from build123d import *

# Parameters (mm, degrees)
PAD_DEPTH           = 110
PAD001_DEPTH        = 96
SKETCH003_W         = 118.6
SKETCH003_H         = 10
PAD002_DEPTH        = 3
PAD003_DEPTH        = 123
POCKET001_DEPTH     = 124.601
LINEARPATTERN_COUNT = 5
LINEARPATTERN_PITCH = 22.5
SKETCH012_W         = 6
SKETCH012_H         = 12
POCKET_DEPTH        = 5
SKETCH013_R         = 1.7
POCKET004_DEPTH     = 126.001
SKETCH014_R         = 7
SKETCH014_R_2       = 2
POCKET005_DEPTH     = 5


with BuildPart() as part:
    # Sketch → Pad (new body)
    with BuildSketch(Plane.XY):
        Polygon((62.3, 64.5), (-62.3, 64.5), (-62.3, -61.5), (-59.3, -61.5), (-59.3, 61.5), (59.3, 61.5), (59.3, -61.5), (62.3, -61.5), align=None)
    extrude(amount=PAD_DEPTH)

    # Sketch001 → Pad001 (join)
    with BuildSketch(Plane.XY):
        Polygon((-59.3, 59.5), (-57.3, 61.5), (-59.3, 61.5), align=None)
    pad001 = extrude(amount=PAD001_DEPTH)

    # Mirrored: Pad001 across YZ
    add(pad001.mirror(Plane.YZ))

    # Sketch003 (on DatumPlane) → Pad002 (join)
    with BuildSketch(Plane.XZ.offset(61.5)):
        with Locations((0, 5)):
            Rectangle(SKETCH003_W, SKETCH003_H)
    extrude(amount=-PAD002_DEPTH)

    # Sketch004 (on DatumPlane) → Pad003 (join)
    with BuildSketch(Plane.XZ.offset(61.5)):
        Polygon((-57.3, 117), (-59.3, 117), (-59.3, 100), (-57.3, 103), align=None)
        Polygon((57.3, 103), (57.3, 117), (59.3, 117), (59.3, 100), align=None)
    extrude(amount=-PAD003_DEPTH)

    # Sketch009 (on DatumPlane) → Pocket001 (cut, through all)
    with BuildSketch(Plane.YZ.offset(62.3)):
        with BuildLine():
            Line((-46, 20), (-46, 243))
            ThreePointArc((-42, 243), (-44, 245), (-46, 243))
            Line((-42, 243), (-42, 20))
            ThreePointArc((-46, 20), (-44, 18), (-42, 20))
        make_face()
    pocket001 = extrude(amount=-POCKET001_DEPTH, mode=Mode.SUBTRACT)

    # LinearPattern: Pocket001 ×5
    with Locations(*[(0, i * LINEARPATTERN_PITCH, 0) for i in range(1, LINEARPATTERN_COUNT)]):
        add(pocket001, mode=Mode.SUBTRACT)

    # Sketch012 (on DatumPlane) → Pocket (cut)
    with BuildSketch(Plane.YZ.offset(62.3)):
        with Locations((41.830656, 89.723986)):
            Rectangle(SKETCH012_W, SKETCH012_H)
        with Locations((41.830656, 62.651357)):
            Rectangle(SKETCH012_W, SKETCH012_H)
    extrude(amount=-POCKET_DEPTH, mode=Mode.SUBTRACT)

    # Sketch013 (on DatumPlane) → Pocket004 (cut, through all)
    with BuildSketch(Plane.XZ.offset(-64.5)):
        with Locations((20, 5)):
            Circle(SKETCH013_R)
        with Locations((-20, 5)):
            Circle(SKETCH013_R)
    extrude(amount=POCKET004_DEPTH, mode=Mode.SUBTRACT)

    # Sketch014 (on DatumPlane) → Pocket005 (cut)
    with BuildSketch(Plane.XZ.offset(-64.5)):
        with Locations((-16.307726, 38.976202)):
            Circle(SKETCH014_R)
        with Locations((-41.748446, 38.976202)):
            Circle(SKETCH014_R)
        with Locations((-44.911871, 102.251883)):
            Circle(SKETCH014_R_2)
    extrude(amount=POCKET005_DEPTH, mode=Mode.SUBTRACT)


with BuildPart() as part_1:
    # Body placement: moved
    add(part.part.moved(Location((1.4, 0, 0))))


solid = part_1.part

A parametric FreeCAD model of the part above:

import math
import FreeCAD as App
import Part
import Sketcher
from FreeCAD import Vector


def add_polygon(sketch, points):
    """Adds a closed chain of lines whose ends are joined by coincident constraints."""
    first, n = sketch.GeometryCount, len(points)
    for a, b in zip(points, points[1:] + points[:1]):
        sketch.addGeometry(Part.LineSegment(App.Vector(*a, 0), App.Vector(*b, 0)), False)
    for i in range(n):
        sketch.addConstraint(Sketcher.Constraint("Coincident", first + i, 2, first + (i + 1) % n, 1))

doc = App.newDocument("Part")
body = doc.addObject("PartDesign::Body", "Body")

# Sketch on XY plane
sketch1 = body.newObject("Sketcher::SketchObject", "Sketch")
sketch1.AttachmentSupport = (doc.getObject("XY_Plane"), [""])
sketch1.MapMode = "FlatFace"
add_polygon(sketch1, [(62.3, 64.5), (-62.3, 64.5), (-62.3, -61.5), (-59.3, -61.5), (-59.3, 61.5), (59.3, 61.5), (59.3, -61.5), (62.3, -61.5)])  # lines 0-7
sketch1.addConstraint([
    Sketcher.Constraint("Horizontal", 0),
    Sketcher.Constraint("Vertical", 1),
    Sketcher.Constraint("Horizontal", 2),
    Sketcher.Constraint("Vertical", 3),
    Sketcher.Constraint("Horizontal", 4),
    Sketcher.Constraint("Vertical", 5),
    Sketcher.Constraint("Horizontal", 6),
    Sketcher.Constraint("Vertical", 7),
    Sketcher.Constraint("Symmetric", 2, 2, 4, 2, -1, 1),
    Sketcher.Constraint("Symmetric", 1, 2, 6, 2, -2),
    Sketcher.Constraint("DistanceX", 2, 1, 2, 2, 3.0),
    Sketcher.Constraint("DistanceY", 1, 2, 1, 1, 126.0),
    Sketcher.Constraint("DistanceY", 3, 1, 3, 2, 123.0),
    Sketcher.Constraint("DistanceX", 0, 2, 0, 1, 124.6),
])
pad1 = body.newObject("PartDesign::Pad", "Pad")
pad1.Profile = sketch1
pad1.Length = 110

# Sketch on XY plane
sketch2 = body.newObject("Sketcher::SketchObject", "Sketch001")
sketch2.AttachmentSupport = (doc.getObject("XY_Plane"), [""])
sketch2.MapMode = "FlatFace"
add_polygon(sketch2, [(-59.3, 59.5), (-57.3, 61.5), (-59.3, 61.5)])  # lines 0-2
sketch2.addConstraint([
    Sketcher.Constraint("Horizontal", 1),
    Sketcher.Constraint("Vertical", 2),
    Sketcher.Constraint("Equal", 1, 2),
    Sketcher.Constraint("DistanceX", 1, 2, 1, 1, 2.0),
    Sketcher.Constraint("DistanceX", 0, 2, -1, 1, 57.3),
    Sketcher.Constraint("DistanceY", -1, 1, 0, 2, 61.5),
])
pad2 = body.newObject("PartDesign::Pad", "Pad001")
pad2.Profile = sketch2
pad2.Length = 96
doc.recompute()

mirrored = body.newObject("PartDesign::Mirrored", "Mirrored")
mirrored.Originals = [pad2]
mirrored.MirrorPlane = (doc.getObject("YZ_Plane"), [""])
body.Tip = mirrored

# Sketch on XZ plane
sketch3 = body.newObject("Sketcher::SketchObject", "Sketch002")
sketch3.AttachmentSupport = (doc.getObject("XZ_Plane"), [""])
sketch3.MapMode = "FlatFace"
sketch3.AttachmentOffset = App.Placement(Vector(0, 0, 61.5), App.Rotation())
add_polygon(sketch3, [(-59, 10), (-59, 0), (59, 0), (59, 10)])  # lines 0-3
sketch3.addConstraint([
    Sketcher.Constraint("Vertical", 0),
    Sketcher.Constraint("Horizontal", 1),
    Sketcher.Constraint("Vertical", 2),
    Sketcher.Constraint("Horizontal", 3),
    Sketcher.Constraint("Symmetric", 0, 2, 1, 2, -1, 1),
    Sketcher.Constraint("DistanceY", 0, 2, 0, 1, 10.0),
    Sketcher.Constraint("DistanceX", 1, 1, 1, 2, 118.6),
])
pad3 = body.newObject("PartDesign::Pad", "Pad002")
pad3.Profile = sketch3
pad3.Length = 3
pad3.Reversed = True

# Sketch on XZ plane
sketch4 = body.newObject("Sketcher::SketchObject", "Sketch003")
sketch4.AttachmentSupport = (doc.getObject("XZ_Plane"), [""])
sketch4.MapMode = "FlatFace"
sketch4.AttachmentOffset = App.Placement(Vector(0, 0, 61.5), App.Rotation())
add_polygon(sketch4, [(-57.3, 117), (-59.3, 117), (-59.3, 100), (-57.3, 103)])  # lines 0-3
add_polygon(sketch4, [(57.3, 117), (57.3, 103), (59.3, 100), (59.3, 117)])  # lines 4-7
sketch4.addConstraint([
    Sketcher.Constraint("Horizontal", 0),
    Sketcher.Constraint("Vertical", 1),
    Sketcher.Constraint("Vertical", 3),
    Sketcher.Constraint("Vertical", 4),
    Sketcher.Constraint("Vertical", 6),
    Sketcher.Constraint("Horizontal", 7),
    Sketcher.Constraint("Symmetric", 2, 2, 4, 2, -2),
    Sketcher.Constraint("Symmetric", 1, 2, 5, 2, -2),
    Sketcher.Constraint("Horizontal", 3, 2, 6, 2),
    Sketcher.Constraint("DistanceX", 0, 2, 0, 1, 2.0),
    Sketcher.Constraint("DistanceY", 1, 2, 1, 1, 17.0),
    Sketcher.Constraint("DistanceY", 3, 1, 3, 2, 14.0),
    Sketcher.Constraint("DistanceY", -1, 1, 0, 2, 117.0),
    Sketcher.Constraint("DistanceX", 0, 2, -1, 1, 59.3),
])
pad4 = body.newObject("PartDesign::Pad", "Pad003")
pad4.Profile = sketch4
pad4.Length = 123
pad4.Reversed = True

# Sketch on YZ plane
sketch5 = body.newObject("Sketcher::SketchObject", "Sketch004")
sketch5.AttachmentSupport = (doc.getObject("YZ_Plane"), [""])
sketch5.MapMode = "FlatFace"
sketch5.AttachmentOffset = App.Placement(Vector(0, 0, 62.3), App.Rotation())
sketch5.addGeometry([
    Part.LineSegment(Vector(-46, 243, 0), Vector(-46, 20, 0)),
    Part.ArcOfCircle(Part.Circle(Vector(-44, 20, 0), Vector(0, 0, 1), 2), math.radians(180), math.radians(360)),
    Part.LineSegment(Vector(-42, 20, 0), Vector(-42, 243, 0)),
    Part.ArcOfCircle(Part.Circle(Vector(-44, 243, 0), Vector(0, 0, 1), 2), math.radians(0), math.radians(180)),
], False)
sketch5.addConstraint([
    Sketcher.Constraint("Tangent", 0, 2, 1, 1),
    Sketcher.Constraint("Tangent", 1, 2, 2, 1),
    Sketcher.Constraint("Tangent", 2, 2, 3, 1),
    Sketcher.Constraint("Tangent", 3, 2, 0, 1),
    Sketcher.Constraint("Vertical", 0),
    Sketcher.Constraint("Vertical", 2),
    Sketcher.Constraint("Radius", 1, 2.0),
    Sketcher.Constraint("DistanceY", 0, 2, 0, 1, 223.0),
    Sketcher.Constraint("DistanceX", 1, 3, -1, 1, 44.0),
    Sketcher.Constraint("DistanceY", -1, 1, 1, 3, 20.0),
])
pocket1 = body.newObject("PartDesign::Pocket", "Pocket")
pocket1.Profile = sketch5
pocket1.Type = "ThroughAll"
doc.recompute()

linearpattern = body.newObject("PartDesign::LinearPattern", "LinearPattern")
linearpattern.Originals = [pocket1]
linearpattern.Direction = (doc.getObject("Y_Axis"), [""])
linearpattern.Mode = "offset"
linearpattern.Offset = 22.5
linearpattern.Occurrences = 5
body.Tip = linearpattern

# Sketch on YZ plane
sketch6 = body.newObject("Sketcher::SketchObject", "Sketch005")
sketch6.AttachmentSupport = (doc.getObject("YZ_Plane"), [""])
sketch6.MapMode = "FlatFace"
sketch6.AttachmentOffset = App.Placement(Vector(0, 0, 62.3), App.Rotation())
add_polygon(sketch6, [(39, 96), (39, 84), (45, 84), (45, 96)])  # lines 0-3
add_polygon(sketch6, [(39, 69), (39, 57), (45, 57), (45, 69)])  # lines 4-7
sketch6.addConstraint([
    Sketcher.Constraint("Vertical", 0),
    Sketcher.Constraint("Horizontal", 1),
    Sketcher.Constraint("Vertical", 2),
    Sketcher.Constraint("Horizontal", 3),
    Sketcher.Constraint("Vertical", 4),
    Sketcher.Constraint("Horizontal", 5),
    Sketcher.Constraint("Vertical", 6),
    Sketcher.Constraint("Horizontal", 7),
    Sketcher.Constraint("Vertical", 3, 2, 4, 2),
    Sketcher.Constraint("Vertical", 2, 2, 5, 2),
    Sketcher.Constraint("Equal", 2, 4),
    Sketcher.Constraint("DistanceX", 1, 1, 1, 2, 6.0),
    Sketcher.Constraint("DistanceY", 0, 2, 0, 1, 12.0),
    Sketcher.Constraint("DistanceY", 4, 2, 0, 2, 27.072629),
    Sketcher.Constraint("DistanceX", -1, 1, 0, 2, 38.830656),
    Sketcher.Constraint("DistanceY", -1, 1, 0, 2, 83.723986),
])
pocket2 = body.newObject("PartDesign::Pocket", "Pocket001")
pocket2.Profile = sketch6
pocket2.Length = 5

# Sketch on XZ plane
sketch7 = body.newObject("Sketcher::SketchObject", "Sketch006")
sketch7.AttachmentSupport = (doc.getObject("XZ_Plane"), [""])
sketch7.MapMode = "FlatFace"
sketch7.AttachmentOffset = App.Placement(Vector(0, 0, -64.5), App.Rotation())
sketch7.addGeometry([
    Part.Circle(Vector(20, 5, 0), Vector(0, 0, 1), 1.7),
    Part.Circle(Vector(-20, 5, 0), Vector(0, 0, 1), 1.7),
], False)
sketch7.addConstraint([
    Sketcher.Constraint("Equal", 0, 1),
    Sketcher.Constraint("Symmetric", 0, 3, 1, 3, -2),
    Sketcher.Constraint("Diameter", 0, 3.4),
    Sketcher.Constraint("DistanceX", -1, 1, 0, 3, 20.0),
    Sketcher.Constraint("DistanceY", -1, 1, 0, 3, 5.0),
])
pocket3 = body.newObject("PartDesign::Pocket", "Pocket002")
pocket3.Profile = sketch7
pocket3.Type = "ThroughAll"
pocket3.Reversed = True

# Sketch on XZ plane
sketch8 = body.newObject("Sketcher::SketchObject", "Sketch007")
sketch8.AttachmentSupport = (doc.getObject("XZ_Plane"), [""])
sketch8.MapMode = "FlatFace"
sketch8.AttachmentOffset = App.Placement(Vector(0, 0, -64.5), App.Rotation())
sketch8.addGeometry([
    Part.Circle(Vector(-16.3, 39, 0), Vector(0, 0, 1), 7),
    Part.Circle(Vector(-41.7, 39, 0), Vector(0, 0, 1), 7),
    Part.Circle(Vector(-44.9, 102.3, 0), Vector(0, 0, 1), 2),
], False)
sketch8.addConstraint([
    Sketcher.Constraint("Equal", 0, 1),
    Sketcher.Constraint("Horizontal", 0, 3, 1, 3),
    Sketcher.Constraint("Diameter", 0, 14.0),
    Sketcher.Constraint("Diameter", 2, 4.0),
    Sketcher.Constraint("DistanceX", 2, 3, -1, 1, 44.911871),
    Sketcher.Constraint("DistanceX", 1, 3, 0, 3, 25.44072),
    Sketcher.Constraint("DistanceY", 1, 3, 2, 3, 63.275681),
    Sketcher.Constraint("DistanceX", 0, 3, -1, 1, 16.307726),
    Sketcher.Constraint("DistanceY", -1, 1, 0, 3, 38.976202),
])
pocket4 = body.newObject("PartDesign::Pocket", "Pocket003")
pocket4.Profile = sketch8
pocket4.Length = 5
pocket4.Reversed = True
body2 = doc.addObject("PartDesign::Body", "Body001")
doc.recompute()

body.Placement = App.Placement(Vector(1.4, 0, 0), App.Rotation(Vector(0, 0, 1), 0))
boolean = body2.newObject("PartDesign::Boolean", "Boolean")
boolean.Type = "Fuse"
boolean.addObjects([body])

doc.recompute()
